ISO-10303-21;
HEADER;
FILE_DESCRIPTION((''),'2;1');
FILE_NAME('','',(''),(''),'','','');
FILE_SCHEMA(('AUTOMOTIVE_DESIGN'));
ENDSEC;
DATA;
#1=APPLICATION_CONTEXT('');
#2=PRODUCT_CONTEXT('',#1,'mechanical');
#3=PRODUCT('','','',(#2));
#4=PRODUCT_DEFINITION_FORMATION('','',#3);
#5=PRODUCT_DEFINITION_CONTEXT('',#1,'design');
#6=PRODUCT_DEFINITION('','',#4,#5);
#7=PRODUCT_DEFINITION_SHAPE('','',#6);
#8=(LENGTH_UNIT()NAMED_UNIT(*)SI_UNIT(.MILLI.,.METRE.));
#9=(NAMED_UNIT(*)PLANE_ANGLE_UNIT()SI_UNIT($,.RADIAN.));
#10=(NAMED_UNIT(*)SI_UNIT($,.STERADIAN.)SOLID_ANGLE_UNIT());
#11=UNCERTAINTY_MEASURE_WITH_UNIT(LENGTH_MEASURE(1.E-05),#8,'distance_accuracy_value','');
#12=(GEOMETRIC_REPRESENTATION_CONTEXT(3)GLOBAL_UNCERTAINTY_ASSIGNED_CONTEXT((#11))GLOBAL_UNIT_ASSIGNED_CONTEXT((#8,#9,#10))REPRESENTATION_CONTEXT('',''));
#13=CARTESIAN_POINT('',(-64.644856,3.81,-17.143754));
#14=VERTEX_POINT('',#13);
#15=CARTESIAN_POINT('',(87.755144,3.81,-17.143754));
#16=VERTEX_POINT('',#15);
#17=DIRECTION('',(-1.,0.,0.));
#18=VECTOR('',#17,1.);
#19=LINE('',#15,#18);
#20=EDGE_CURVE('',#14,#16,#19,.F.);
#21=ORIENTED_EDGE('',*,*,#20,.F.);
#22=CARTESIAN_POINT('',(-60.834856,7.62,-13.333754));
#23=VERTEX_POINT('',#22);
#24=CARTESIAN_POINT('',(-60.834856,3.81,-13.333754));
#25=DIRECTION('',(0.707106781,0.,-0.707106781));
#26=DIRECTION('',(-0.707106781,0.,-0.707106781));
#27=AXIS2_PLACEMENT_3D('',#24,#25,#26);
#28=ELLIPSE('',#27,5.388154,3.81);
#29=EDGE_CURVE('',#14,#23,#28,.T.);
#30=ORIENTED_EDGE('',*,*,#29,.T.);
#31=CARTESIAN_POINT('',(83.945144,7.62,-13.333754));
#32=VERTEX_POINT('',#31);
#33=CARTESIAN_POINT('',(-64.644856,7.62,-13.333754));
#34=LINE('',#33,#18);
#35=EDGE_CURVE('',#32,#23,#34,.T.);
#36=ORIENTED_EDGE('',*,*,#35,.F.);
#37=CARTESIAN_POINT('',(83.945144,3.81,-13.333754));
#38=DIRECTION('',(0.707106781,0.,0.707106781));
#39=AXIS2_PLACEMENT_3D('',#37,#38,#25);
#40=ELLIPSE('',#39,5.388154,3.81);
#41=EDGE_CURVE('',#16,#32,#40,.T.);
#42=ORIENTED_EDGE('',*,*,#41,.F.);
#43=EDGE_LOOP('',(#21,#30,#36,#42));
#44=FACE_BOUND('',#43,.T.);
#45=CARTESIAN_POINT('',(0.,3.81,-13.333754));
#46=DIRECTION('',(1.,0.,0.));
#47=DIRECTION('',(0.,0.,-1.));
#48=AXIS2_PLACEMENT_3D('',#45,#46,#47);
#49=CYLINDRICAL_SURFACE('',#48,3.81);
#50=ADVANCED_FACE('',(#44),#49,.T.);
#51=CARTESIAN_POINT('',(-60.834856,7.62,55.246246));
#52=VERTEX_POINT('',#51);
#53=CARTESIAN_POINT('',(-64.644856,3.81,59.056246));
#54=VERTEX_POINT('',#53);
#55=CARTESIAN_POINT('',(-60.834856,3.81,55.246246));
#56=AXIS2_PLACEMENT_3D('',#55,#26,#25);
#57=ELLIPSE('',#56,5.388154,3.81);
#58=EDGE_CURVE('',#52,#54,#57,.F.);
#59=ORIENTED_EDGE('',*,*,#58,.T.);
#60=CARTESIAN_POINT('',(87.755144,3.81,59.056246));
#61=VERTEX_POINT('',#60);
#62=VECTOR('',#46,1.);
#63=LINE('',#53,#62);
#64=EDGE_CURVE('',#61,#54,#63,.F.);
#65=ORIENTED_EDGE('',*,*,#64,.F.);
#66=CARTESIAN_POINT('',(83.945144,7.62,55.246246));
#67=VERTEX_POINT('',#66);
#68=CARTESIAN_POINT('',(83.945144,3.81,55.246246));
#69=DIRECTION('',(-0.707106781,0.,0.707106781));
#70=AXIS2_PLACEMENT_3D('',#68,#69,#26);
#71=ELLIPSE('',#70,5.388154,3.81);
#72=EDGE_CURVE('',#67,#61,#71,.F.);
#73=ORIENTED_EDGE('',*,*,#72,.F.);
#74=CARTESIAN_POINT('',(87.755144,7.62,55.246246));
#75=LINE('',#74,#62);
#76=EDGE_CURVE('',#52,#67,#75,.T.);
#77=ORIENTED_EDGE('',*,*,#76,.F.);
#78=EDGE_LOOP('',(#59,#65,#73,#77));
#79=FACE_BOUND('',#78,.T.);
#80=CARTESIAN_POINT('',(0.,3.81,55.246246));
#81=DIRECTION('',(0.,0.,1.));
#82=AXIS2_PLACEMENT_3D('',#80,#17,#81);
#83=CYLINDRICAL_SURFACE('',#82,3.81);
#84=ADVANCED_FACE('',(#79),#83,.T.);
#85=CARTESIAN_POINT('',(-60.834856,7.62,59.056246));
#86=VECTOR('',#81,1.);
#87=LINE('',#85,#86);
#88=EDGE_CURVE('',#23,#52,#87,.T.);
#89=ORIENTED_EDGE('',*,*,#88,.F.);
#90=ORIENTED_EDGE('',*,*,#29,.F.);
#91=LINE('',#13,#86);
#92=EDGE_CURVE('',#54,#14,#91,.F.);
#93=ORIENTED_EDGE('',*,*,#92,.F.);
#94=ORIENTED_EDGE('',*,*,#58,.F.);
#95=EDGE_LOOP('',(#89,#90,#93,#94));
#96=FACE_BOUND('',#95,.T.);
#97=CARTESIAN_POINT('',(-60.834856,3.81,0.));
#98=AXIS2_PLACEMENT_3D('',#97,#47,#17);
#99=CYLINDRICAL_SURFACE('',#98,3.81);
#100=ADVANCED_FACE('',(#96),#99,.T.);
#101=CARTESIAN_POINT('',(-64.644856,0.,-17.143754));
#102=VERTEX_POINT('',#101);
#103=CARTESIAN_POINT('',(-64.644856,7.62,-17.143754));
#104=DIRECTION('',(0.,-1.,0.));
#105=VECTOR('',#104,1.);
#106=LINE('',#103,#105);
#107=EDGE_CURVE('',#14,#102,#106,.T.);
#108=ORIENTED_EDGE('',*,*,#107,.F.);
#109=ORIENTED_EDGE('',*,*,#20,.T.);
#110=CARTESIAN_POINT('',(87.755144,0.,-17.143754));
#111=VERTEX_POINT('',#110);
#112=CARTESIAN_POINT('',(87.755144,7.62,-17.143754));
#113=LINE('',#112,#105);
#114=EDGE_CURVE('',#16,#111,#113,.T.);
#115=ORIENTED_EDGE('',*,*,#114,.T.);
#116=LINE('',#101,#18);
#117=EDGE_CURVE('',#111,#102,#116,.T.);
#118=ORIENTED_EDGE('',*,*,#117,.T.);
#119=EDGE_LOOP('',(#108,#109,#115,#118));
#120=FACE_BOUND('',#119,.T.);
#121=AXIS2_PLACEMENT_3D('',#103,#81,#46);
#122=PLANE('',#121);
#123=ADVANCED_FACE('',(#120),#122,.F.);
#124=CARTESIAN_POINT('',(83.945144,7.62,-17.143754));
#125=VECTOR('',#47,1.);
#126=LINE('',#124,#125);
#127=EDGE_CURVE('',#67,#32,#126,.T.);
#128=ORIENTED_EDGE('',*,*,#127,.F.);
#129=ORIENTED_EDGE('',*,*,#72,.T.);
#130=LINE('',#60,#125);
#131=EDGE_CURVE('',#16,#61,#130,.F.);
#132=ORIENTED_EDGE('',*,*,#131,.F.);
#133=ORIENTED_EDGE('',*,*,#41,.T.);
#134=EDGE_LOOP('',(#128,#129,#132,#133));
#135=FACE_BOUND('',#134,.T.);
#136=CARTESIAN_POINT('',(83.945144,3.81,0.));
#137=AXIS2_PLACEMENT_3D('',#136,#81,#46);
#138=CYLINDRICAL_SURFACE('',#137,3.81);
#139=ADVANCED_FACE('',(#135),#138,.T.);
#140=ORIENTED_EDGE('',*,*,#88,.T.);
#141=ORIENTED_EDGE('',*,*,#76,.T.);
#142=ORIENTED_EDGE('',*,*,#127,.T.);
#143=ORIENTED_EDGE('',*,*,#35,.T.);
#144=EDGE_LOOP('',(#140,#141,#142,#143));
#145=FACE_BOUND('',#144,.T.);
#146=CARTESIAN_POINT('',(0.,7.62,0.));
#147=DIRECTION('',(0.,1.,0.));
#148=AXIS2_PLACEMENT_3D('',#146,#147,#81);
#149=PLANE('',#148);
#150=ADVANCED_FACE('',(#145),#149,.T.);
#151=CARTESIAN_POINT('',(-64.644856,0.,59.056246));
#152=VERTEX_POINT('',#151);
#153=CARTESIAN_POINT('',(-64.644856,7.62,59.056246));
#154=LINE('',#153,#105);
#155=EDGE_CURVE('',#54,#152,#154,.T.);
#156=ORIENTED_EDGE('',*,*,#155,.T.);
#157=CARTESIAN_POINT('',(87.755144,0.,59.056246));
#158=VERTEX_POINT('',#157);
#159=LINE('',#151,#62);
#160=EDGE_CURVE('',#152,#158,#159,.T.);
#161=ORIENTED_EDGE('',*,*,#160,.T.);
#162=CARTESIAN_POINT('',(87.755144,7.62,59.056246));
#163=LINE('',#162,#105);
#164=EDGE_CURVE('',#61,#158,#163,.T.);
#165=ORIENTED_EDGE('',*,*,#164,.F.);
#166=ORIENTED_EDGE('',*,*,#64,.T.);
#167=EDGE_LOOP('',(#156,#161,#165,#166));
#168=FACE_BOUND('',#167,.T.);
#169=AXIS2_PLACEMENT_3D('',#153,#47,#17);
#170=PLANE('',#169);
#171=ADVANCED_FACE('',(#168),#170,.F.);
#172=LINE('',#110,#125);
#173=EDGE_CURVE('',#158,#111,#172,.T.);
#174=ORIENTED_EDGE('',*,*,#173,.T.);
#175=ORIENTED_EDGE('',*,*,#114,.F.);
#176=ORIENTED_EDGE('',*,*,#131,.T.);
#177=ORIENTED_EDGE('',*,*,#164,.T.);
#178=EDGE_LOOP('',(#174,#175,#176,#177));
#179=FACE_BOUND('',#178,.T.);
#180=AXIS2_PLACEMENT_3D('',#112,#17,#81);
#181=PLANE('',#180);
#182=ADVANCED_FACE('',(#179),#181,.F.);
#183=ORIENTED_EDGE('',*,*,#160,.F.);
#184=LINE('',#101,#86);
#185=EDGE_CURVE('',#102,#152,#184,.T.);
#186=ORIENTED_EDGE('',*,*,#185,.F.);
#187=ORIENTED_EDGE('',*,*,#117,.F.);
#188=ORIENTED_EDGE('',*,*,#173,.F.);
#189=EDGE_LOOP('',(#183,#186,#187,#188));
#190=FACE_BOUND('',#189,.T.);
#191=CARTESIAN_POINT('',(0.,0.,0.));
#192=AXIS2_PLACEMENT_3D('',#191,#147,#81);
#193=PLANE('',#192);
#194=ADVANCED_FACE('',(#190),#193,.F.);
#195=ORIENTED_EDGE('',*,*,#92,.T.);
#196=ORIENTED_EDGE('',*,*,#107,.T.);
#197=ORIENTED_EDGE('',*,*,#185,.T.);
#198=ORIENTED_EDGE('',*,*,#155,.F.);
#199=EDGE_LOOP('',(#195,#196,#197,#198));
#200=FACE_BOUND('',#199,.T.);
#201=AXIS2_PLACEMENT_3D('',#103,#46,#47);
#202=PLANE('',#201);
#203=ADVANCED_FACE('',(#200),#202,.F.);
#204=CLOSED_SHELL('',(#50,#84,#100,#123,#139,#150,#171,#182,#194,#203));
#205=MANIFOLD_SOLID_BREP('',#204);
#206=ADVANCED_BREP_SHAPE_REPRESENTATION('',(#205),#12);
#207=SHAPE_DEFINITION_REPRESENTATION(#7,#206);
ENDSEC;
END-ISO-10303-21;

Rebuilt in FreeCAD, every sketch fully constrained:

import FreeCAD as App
import Part
import Sketcher
from FreeCAD import Vector
Q = App.Units.Quantity


def edges_at(feature, points):
    """Names of the edges that pass closest to the given points."""
    edges = feature.Shape.Edges
    near = lambda p: min(range(len(edges)), key=lambda i: edges[i].distToShape(Part.Vertex(*p))[0])
    return sorted({f"Edge{near(p) + 1}" for p in points})


def add_polygon(sketch, points):
    """Adds a closed chain of lines whose ends are joined by coincident constraints."""
    first, n = sketch.GeometryCount, len(points)
    for a, b in zip(points, points[1:] + points[:1]):
        sketch.addGeometry(Part.LineSegment(App.Vector(*a, 0), App.Vector(*b, 0)), False)
    for i in range(n):
        sketch.addConstraint(Sketcher.Constraint("Coincident", first + i, 2, first + (i + 1) % n, 1))

doc = App.newDocument("Part")
params = doc.addObject("Spreadsheet::Sheet", "Params")
for row, (alias, value) in enumerate([
    ("sketch1_width", "6 in"),
    ("sketch1_height", "3 in"),
    ("pad1_length", "0.3 in"),
    ("fillet_radius", "0.15 in"),
], start=1):
    params.set(f"A{row}", alias)
    params.set(f"B{row}", "=" + value)
    params.setAlias(f"B{row}", alias)

body = doc.addObject("PartDesign::Body", "Body")

# Sketch on XZ plane
sketch1 = doc.addObject("Sketcher::SketchObject", "Sketch")
body.addObject(sketch1)
sketch1.AttachmentSupport = (doc.XZ_Plane, [""])
sketch1.MapMode = "FlatFace"
add_polygon(sketch1, [(-65, -17), (-65, 59), (88, 59), (88, -17)])  # lines 0-3
sketch1.addConstraint([
    Sketcher.Constraint("Vertical", 0),
    Sketcher.Constraint("Horizontal", 1),
    Sketcher.Constraint("Vertical", 2),
    Sketcher.Constraint("Horizontal", 3),
    Sketcher.Constraint("DistanceX", 1, 1, 1, 2, Q("6 in")),
    Sketcher.Constraint("DistanceY", 0, 1, 0, 2, Q("3 in")),
    Sketcher.Constraint("DistanceX", 0, 2, -1, 1, 64.644856),
    Sketcher.Constraint("DistanceY", -1, 1, 0, 2, 59.056246),
])
sketch1.setExpression("Constraints[8]", "Params.sketch1_width")
sketch1.setExpression("Constraints[9]", "Params.sketch1_height")
pad1 = doc.addObject("PartDesign::Pad", "Pad")
body.addObject(pad1)
pad1.Profile = sketch1
pad1.setExpression("Length", "Params.pad1_length")
pad1.Reversed = True
doc.recompute()

fillet = doc.addObject("PartDesign::Fillet", "Fillet")
body.addObject(fillet)
fillet.Base = (pad1, edges_at(pad1, [
    (87.755, 7.62, 20.956),
    (11.555, 7.62, -17.144),
    (-64.645, 7.62, 20.956),
    (11.555, 7.62, 59.056),
]))
fillet.setExpression("Radius", "Params.fillet_radius")

doc.recompute()
